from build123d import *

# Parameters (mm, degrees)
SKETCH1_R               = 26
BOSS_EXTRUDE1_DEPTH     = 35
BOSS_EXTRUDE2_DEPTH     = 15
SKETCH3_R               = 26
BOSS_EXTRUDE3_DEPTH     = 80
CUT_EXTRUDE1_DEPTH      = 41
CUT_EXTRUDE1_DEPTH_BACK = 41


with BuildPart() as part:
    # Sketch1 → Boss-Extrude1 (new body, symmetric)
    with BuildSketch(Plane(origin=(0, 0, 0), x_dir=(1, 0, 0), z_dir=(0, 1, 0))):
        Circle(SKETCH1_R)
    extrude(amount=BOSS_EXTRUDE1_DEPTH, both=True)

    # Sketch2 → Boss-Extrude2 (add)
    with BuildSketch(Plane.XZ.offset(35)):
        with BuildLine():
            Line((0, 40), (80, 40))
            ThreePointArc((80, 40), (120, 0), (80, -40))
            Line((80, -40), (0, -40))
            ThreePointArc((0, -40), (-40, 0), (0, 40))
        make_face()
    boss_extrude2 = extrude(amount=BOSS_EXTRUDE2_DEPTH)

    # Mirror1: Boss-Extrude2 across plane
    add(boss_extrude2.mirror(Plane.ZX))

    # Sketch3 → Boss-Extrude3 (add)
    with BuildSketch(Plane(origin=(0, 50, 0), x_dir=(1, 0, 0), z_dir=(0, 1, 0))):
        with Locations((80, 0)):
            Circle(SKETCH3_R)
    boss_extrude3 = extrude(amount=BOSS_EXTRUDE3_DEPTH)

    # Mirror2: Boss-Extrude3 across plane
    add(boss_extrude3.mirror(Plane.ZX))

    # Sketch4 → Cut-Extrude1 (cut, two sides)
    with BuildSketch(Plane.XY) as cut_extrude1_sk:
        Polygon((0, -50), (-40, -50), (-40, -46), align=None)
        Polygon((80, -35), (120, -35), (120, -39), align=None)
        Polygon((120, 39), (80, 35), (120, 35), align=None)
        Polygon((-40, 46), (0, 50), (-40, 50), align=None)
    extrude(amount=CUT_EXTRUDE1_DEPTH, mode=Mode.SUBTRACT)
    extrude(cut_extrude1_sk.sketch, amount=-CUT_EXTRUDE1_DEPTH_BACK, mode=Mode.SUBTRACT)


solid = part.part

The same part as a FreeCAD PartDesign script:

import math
import FreeCAD as App
import Part
import Sketcher

doc = App.newDocument("Part")
body = doc.addObject("PartDesign::Body", "Body")

sketch1 = doc.addObject("Sketcher::SketchObject", "Sketch")
body.addObject(sketch1)
sketch1.AttachmentSupport = (doc.XZ_Plane, [""])
sketch1.MapMode = "FlatFace"
sketch1.addGeometry(Part.Circle(App.Vector(0, 0, 0), App.Vector(0, 0, 1), 26), False)
sketch1.addConstraint([
    Sketcher.Constraint("Coincident", 0, 3, -1, 1),
    Sketcher.Constraint("Diameter", 0, 52.0),
])
pad1 = doc.addObject("PartDesign::Pad", "Pad")
body.addObject(pad1)
pad1.Profile = sketch1
pad1.Length = 70
pad1.Midplane = True

sketch2 = doc.addObject("Sketcher::SketchObject", "Sketch001")
body.addObject(sketch2)
sketch2.AttachmentSupport = (doc.XZ_Plane, [""])
sketch2.MapMode = "FlatFace"
sketch2.AttachmentOffset = App.Placement(App.Vector(0, 0, 35), App.Rotation())
sketch2.addGeometry([
    Part.LineSegment(App.Vector(80, 40, 0), App.Vector(0, 40, 0)),
    Part.ArcOfCircle(Part.Circle(App.Vector(0, 0, 0), App.Vector(0, 0, 1), 40), math.radians(90), math.radians(270)),
    Part.LineSegment(App.Vector(0, -40, 0), App.Vector(80, -40, 0)),
    Part.ArcOfCircle(Part.Circle(App.Vector(80, 0, 0), App.Vector(0, 0, 1), 40), math.radians(-90), math.radians(90)),
], False)
sketch2.addConstraint([
    Sketcher.Constraint("Tangent", 0, 2, 1, 1),
    Sketcher.Constraint("Tangent", 1, 2, 2, 1),
    Sketcher.Constraint("Tangent", 2, 2, 3, 1),
    Sketcher.Constraint("Tangent", 3, 2, 0, 1),
    Sketcher.Constraint("Horizontal", 0),
    Sketcher.Constraint("Horizontal", 2),
    Sketcher.Constraint("Coincident", 1, 3, -1, 1),
    Sketcher.Constraint("Radius", 1, 40.0),
    Sketcher.Constraint("DistanceX", 0, 2, 0, 1, 80.0),
])
pad2 = doc.addObject("PartDesign::Pad", "Pad001")
body.addObject(pad2)
pad2.Profile = sketch2
pad2.Length = 15
doc.recompute()

mirrored = doc.addObject("PartDesign::Mirrored", "Mirrored")
body.addObject(mirrored)
mirrored.Originals = [pad2]
mirrored.MirrorPlane = (doc.XZ_Plane, [""])
body.Tip = mirrored

sketch3 = doc.addObject("Sketcher::SketchObject", "Sketch002")
body.addObject(sketch3)
sketch3.AttachmentSupport = (doc.XZ_Plane, [""])
sketch3.MapMode = "FlatFace"
sketch3.AttachmentOffset = App.Placement(App.Vector(0, 0, -50), App.Rotation())
sketch3.addGeometry(Part.Circle(App.Vector(80, 0, 0), App.Vector(0, 0, 1), 26), False)
sketch3.addConstraint([
    Sketcher.Constraint("PointOnObject", 0, 3, -1),
    Sketcher.Constraint("Diameter", 0, 52.0),
    Sketcher.Constraint("DistanceX", -1, 1, 0, 3, 80.0),
])
pad3 = doc.addObject("PartDesign::Pad", "Pad002")
body.addObject(pad3)
pad3.Profile = sketch3
pad3.Length = 80
pad3.Reversed = True
doc.recompute()

mirrored2 = doc.addObject("PartDesign::Mirrored", "Mirrored001")
body.addObject(mirrored2)
mirrored2.Originals = [pad3]
mirrored2.MirrorPlane = (doc.XZ_Plane, [""])
body.Tip = mirrored2

sketch4 = doc.addObject("Sketcher::SketchObject", "Sketch003")
body.addObject(sketch4)
sketch4.AttachmentSupport = (doc.XY_Plane, [""])
sketch4.MapMode = "FlatFace"
sketch4.addGeometry([
    Part.LineSegment(App.Vector(-40, -50, 0), App.Vector(0, -50, 0)),
    Part.LineSegment(App.Vector(0, -50, 0), App.Vector(-40, -46, 0)),
    Part.LineSegment(App.Vector(-40, -46, 0), App.Vector(-40, -50, 0)),
    Part.LineSegment(App.Vector(120, -35, 0), App.Vector(80, -35, 0)),
    Part.LineSegment(App.Vector(80, -35, 0), App.Vector(120, -39, 0)),
    Part.LineSegment(App.Vector(120, -39, 0), App.Vector(120, -35, 0)),
    Part.LineSegment(App.Vector(120, 39, 0), App.Vector(80, 35, 0)),
    Part.LineSegment(App.Vector(80, 35, 0), App.Vector(120, 35, 0)),
    Part.LineSegment(App.Vector(120, 35, 0), App.Vector(120, 39, 0)),
    Part.LineSegment(App.Vector(-40, 46, 0), App.Vector(0, 50, 0)),
    Part.LineSegment(App.Vector(0, 50, 0), App.Vector(-40, 50, 0)),
    Part.LineSegment(App.Vector(-40, 50, 0), App.Vector(-40, 46, 0)),
], False)
sketch4.addConstraint([
    Sketcher.Constraint("Coincident", 0, 2, 1, 1),
    Sketcher.Constraint("Coincident", 1, 2, 2, 1),
    Sketcher.Constraint("Coincident", 2, 2, 0, 1),
    Sketcher.Constraint("Coincident", 3, 2, 4, 1),
    Sketcher.Constraint("Coincident", 4, 2, 5, 1),
    Sketcher.Constraint("Coincident", 5, 2, 3, 1),
    Sketcher.Constraint("Coincident", 6, 2, 7, 1),
    Sketcher.Constraint("Coincident", 7, 2, 8, 1),
    Sketcher.Constraint("Coincident", 8, 2, 6, 1),
    Sketcher.Constraint("Coincident", 9, 2, 10, 1),
    Sketcher.Constraint("Coincident", 10, 2, 11, 1),
    Sketcher.Constraint("Coincident", 11, 2, 9, 1),
    Sketcher.Constraint("Horizontal", 0),
    Sketcher.Constraint("Vertical", 2),
    Sketcher.Constraint("Horizontal", 3),
    Sketcher.Constraint("Vertical", 5),
    Sketcher.Constraint("Horizontal", 7),
    Sketcher.Constraint("Vertical", 8),
    Sketcher.Constraint("Horizontal", 10),
    Sketcher.Constraint("Vertical", 11),
    Sketcher.Constraint("Symmetric", 0, 2, 9, 2, -1, 1),
    Sketcher.Constraint("Symmetric", 3, 2, 6, 2, -1),
    Sketcher.Constraint("Symmetric", 4, 2, 8, 2, -1),
    Sketcher.Constraint("Symmetric", 1, 2, 11, 2, -1),
    Sketcher.Constraint("PointOnObject", 0, 2, -2),
    Sketcher.Constraint("Parallel", 1, 4),
    Sketcher.Constraint("Equal", 0, 3),
    Sketcher.Constraint("DistanceX", 0, 1, 0, 2, 40.0),
    Sketcher.Constraint("DistanceY", 2, 2, 2, 1, 4.0),
    Sketcher.Constraint("DistanceY", 0, 2, -1, 1, 50.0),
    Sketcher.Constraint("DistanceX", -1, 1, 3, 2, 80.0),
    Sketcher.Constraint("DistanceY", 3, 2, -1, 1, 35.0),
])
pocket1 = doc.addObject("PartDesign::Pocket", "Pocket")
body.addObject(pocket1)
pocket1.Profile = sketch4
pocket1.Type = "ThroughAll"
pocket1.Midplane = True

doc.recompute()
